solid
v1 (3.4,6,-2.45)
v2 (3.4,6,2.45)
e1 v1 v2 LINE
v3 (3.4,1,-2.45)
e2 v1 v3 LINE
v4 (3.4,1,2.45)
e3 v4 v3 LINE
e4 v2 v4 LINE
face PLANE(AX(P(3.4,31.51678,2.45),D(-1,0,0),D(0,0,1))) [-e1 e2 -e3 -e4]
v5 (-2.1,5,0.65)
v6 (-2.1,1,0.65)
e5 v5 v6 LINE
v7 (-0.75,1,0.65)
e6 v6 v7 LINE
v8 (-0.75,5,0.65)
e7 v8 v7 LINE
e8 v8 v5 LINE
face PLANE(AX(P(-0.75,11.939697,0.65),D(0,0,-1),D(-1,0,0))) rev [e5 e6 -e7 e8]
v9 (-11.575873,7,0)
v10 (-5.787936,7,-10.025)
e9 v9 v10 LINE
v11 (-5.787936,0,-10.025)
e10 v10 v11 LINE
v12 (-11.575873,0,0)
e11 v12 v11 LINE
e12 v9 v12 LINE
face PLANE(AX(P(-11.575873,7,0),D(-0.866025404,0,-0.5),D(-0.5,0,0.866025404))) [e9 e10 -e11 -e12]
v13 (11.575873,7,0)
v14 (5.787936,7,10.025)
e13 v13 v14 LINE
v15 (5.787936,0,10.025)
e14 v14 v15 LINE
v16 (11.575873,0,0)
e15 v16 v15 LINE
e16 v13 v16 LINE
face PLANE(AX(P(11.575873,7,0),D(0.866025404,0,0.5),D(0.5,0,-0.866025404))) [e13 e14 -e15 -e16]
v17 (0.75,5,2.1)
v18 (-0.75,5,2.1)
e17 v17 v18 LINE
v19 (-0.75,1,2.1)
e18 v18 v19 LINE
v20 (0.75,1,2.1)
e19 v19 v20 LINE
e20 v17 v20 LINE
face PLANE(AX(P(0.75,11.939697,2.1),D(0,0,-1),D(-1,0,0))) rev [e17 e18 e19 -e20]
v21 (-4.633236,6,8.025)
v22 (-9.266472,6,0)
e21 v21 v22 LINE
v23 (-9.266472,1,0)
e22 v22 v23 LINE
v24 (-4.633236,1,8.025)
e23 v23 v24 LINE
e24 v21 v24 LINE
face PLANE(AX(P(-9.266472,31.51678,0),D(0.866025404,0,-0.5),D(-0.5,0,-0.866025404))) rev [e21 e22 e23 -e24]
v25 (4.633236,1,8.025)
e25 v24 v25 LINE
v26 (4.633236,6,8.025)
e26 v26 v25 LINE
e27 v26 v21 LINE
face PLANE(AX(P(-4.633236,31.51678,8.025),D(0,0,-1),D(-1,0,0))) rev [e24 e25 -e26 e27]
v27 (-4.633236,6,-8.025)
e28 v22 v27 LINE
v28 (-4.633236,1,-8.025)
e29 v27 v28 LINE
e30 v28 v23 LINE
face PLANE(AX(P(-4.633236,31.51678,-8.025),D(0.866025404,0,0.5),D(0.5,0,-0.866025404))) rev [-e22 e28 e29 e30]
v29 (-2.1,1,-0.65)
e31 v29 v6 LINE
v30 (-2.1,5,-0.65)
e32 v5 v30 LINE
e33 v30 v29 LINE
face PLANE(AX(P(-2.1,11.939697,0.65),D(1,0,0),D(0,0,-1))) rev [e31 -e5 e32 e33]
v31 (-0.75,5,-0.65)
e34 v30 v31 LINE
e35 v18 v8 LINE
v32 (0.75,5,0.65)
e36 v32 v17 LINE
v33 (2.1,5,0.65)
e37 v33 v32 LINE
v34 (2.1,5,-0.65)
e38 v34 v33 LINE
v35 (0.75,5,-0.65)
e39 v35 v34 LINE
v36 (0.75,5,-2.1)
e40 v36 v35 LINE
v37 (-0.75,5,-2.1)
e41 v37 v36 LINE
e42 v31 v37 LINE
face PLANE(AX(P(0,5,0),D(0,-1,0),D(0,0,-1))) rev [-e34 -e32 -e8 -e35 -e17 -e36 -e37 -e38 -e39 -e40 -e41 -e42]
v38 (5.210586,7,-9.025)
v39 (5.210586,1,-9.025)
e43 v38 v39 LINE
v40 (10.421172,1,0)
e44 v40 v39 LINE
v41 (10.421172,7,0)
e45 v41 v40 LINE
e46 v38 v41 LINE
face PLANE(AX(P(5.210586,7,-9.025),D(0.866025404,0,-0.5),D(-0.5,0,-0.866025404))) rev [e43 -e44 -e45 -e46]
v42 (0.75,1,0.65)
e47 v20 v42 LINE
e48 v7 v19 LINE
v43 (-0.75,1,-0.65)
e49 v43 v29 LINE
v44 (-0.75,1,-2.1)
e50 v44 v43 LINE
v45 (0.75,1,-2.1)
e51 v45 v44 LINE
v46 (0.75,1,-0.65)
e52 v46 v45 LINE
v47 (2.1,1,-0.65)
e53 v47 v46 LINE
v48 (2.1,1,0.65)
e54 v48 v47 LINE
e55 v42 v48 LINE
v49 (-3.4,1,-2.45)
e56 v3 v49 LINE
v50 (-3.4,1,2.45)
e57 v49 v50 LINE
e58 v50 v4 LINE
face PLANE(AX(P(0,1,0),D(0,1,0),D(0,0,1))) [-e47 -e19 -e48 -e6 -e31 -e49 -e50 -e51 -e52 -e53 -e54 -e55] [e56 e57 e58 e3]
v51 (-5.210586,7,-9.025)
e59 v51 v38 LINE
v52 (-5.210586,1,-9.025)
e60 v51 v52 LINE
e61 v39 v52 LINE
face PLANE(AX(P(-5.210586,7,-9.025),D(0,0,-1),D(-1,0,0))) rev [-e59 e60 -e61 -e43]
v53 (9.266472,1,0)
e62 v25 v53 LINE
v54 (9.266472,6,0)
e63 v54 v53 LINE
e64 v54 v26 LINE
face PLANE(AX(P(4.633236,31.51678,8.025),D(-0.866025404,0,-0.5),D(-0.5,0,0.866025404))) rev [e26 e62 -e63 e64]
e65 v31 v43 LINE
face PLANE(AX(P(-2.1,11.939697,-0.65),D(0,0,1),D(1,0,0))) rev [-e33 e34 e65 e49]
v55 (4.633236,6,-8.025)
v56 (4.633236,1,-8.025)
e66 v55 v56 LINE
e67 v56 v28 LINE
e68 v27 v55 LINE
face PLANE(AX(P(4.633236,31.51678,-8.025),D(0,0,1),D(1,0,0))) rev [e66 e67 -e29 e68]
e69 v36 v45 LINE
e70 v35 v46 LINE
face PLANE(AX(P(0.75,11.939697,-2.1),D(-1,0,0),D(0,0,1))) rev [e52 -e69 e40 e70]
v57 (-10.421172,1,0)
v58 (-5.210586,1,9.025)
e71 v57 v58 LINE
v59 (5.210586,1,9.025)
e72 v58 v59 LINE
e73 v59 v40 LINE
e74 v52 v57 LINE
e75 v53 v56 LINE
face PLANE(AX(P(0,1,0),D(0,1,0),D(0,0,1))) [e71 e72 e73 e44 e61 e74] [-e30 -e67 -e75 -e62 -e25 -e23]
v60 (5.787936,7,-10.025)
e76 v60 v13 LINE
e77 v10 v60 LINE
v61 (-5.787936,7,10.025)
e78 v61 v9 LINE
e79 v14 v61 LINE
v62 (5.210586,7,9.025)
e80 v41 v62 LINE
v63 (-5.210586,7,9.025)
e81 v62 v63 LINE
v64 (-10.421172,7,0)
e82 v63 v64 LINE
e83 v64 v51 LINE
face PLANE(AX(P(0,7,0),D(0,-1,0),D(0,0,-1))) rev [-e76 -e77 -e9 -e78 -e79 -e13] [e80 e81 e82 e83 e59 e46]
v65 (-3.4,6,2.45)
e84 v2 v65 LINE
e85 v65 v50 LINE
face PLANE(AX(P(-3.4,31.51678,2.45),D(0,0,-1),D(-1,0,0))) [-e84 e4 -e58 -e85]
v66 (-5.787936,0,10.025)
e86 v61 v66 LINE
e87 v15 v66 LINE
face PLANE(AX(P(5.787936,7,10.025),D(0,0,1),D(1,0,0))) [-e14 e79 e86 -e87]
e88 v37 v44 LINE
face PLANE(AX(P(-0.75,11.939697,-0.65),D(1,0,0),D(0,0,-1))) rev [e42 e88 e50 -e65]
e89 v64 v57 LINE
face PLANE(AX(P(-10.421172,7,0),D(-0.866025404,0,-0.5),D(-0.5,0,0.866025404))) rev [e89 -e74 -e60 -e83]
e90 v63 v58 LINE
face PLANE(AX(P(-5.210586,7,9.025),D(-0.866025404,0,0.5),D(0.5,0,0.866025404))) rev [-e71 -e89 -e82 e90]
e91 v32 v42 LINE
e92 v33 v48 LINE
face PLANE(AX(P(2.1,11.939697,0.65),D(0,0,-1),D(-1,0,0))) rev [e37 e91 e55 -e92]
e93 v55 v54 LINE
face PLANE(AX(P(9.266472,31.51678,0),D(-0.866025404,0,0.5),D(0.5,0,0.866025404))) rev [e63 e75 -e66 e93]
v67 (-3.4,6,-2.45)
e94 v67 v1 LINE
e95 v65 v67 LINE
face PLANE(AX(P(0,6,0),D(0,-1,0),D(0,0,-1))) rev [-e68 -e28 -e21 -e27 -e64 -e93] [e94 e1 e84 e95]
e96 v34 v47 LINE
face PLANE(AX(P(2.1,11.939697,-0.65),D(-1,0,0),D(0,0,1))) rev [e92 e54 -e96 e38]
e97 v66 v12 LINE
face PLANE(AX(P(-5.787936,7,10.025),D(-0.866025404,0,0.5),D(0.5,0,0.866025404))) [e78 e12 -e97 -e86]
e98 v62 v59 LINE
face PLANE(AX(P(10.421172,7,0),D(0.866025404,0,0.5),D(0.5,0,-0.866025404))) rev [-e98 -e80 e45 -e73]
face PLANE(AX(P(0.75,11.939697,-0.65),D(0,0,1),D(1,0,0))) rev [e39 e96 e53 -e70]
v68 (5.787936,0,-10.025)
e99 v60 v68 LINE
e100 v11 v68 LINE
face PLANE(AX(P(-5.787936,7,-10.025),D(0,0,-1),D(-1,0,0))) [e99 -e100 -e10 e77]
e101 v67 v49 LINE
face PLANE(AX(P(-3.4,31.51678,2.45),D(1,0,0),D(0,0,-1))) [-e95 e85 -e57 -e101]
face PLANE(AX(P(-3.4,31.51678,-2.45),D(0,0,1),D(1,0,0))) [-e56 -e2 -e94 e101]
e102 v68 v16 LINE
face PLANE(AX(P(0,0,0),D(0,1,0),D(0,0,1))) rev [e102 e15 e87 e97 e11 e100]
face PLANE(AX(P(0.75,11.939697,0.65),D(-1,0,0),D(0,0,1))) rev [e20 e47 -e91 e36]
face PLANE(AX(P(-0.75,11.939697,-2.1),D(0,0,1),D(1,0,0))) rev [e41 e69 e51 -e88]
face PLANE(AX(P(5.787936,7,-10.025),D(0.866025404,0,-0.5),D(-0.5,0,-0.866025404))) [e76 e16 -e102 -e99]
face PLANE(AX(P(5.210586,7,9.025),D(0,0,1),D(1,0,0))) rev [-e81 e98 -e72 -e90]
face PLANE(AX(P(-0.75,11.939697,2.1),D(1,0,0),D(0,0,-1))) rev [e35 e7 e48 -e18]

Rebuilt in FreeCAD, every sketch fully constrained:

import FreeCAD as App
import Part
import Sketcher
from FreeCAD import Vector
Q = App.Units.Quantity


def add_polygon(sketch, points):
    """Adds a closed chain of lines whose ends are joined by coincident constraints."""
    first, n = sketch.GeometryCount, len(points)
    for a, b in zip(points, points[1:] + points[:1]):
        sketch.addGeometry(Part.LineSegment(App.Vector(*a, 0), App.Vector(*b, 0)), False)
    for i in range(n):
        sketch.addConstraint(Sketcher.Constraint("Coincident", first + i, 2, first + (i + 1) % n, 1))

doc = App.newDocument("Part")
body = doc.addObject("PartDesign::Body", "Body")

sketch1 = body.newObject("Sketcher::SketchObject", "Sketch")
sketch1.AttachmentSupport = (doc.getObject("XZ_Plane"), [""])
sketch1.MapMode = "FlatFace"
add_polygon(sketch1, [(10.421172, 0), (5.210586, -9.025), (-5.210586, -9.025), (-10.421172, 0), (-5.210586, 9.025), (5.210586, 9.025)])
sketch1.addConstraint([
    Sketcher.Constraint("Horizontal", 1),
    Sketcher.Constraint("Horizontal", 4),
    Sketcher.Constraint("Symmetric", 0, 2, 3, 2, -1, 1),
    Sketcher.Constraint("Symmetric", 2, 2, 5, 2, -1, 1),
    Sketcher.Constraint("PointOnObject", 2, 2, -1),
    Sketcher.Constraint("Parallel", 2, 5),
    Sketcher.Constraint("Vertical", 1, 2, 3, 2),
    Sketcher.Constraint("Angle", 0, Q("-120 deg")),
    Sketcher.Constraint("DistanceY", 1, 2, 3, 2, 18.05),
    Sketcher.Constraint("DistanceX", 1, 2, 1, 1, 10.421172),
])
pad1 = body.newObject("PartDesign::Pad", "Pad")
pad1.Profile = sketch1
pad1.Length = 1
pad1.Reversed = True
body2 = doc.addObject("PartDesign::Body", "Body001")

sketch2 = body2.newObject("Sketcher::SketchObject", "Sketch001")
sketch2.AttachmentSupport = (doc.getObject("XZ_Plane001"), [""])
sketch2.MapMode = "FlatFace"
add_polygon(sketch2, [(11.575873, 0), (5.787936, 10.025), (-5.787936, 10.025), (-11.575873, 0), (-5.787936, -10.025), (5.787936, -10.025)])
add_polygon(sketch2, [(5.210586, 9.025), (10.421172, 0), (5.210586, -9.025), (-5.210586, -9.025), (-10.421172, 0), (-5.210586, 9.025)])
sketch2.addConstraint([
    Sketcher.Constraint("Horizontal", 1),
    Sketcher.Constraint("Horizontal", 4),
    Sketcher.Constraint("Horizontal", 8),
    Sketcher.Constraint("Horizontal", 11),
    Sketcher.Constraint("Symmetric", 0, 2, 3, 2, -1, 1),
    Sketcher.Constraint("Symmetric", 2, 2, 5, 2, -1, 1),
    Sketcher.Constraint("Symmetric", 6, 2, 9, 2, -1, 1),
    Sketcher.Constraint("Symmetric", 7, 2, 10, 2, -1, 1),
    Sketcher.Constraint("PointOnObject", 2, 2, -1),
    Sketcher.Constraint("PointOnObject", 6, 2, -1),
    Sketcher.Constraint("Parallel", 2, 5),
    Sketcher.Constraint("Parallel", 3, 6),
    Sketcher.Constraint("Parallel", 5, 7),
    Sketcher.Constraint("Parallel", 6, 9),
    Sketcher.Constraint("Vertical", 1, 2, 3, 2),
    Sketcher.Constraint("Angle", 0, Q("120 deg")),
    Sketcher.Constraint("DistanceY", 4, 2, 7, 2, 1.0),
    Sketcher.Constraint("DistanceY", 3, 2, 1, 2, 20.05),
    Sketcher.Constraint("DistanceX", 6, 2, 5, 2, 1.154701),
    Sketcher.Constraint("DistanceX", 1, 2, 1, 1, 11.575873),
])
pad2 = body2.newObject("PartDesign::Pad", "Pad001")
pad2.Profile = sketch2
pad2.Length = 7
pad2.Reversed = True
doc.recompute()

boolean = body.newObject("PartDesign::Boolean", "Boolean")
boolean.Type = "Fuse"
boolean.addObjects([body2])

sketch3 = body.newObject("Sketcher::SketchObject", "Sketch002")
sketch3.AttachmentSupport = (doc.getObject("XZ_Plane"), [""])
sketch3.MapMode = "FlatFace"
sketch3.AttachmentOffset = App.Placement(Vector(0, 0, -1), App.Rotation())
add_polygon(sketch3, [(4.633236, 8.025), (9.266472, 0), (4.633236, -8.025), (-4.633236, -8.025), (-9.266472, 0), (-4.633236, 8.025)])
add_polygon(sketch3, [(3.4, 2.45), (-3.4, 2.45), (-3.4, -2.45), (3.4, -2.45)])
sketch3.addConstraint([
    Sketcher.Constraint("Horizontal", 2),
    Sketcher.Constraint("Horizontal", 5),
    Sketcher.Constraint("Horizontal", 6),
    Sketcher.Constraint("Vertical", 7),
    Sketcher.Constraint("Horizontal", 8),
    Sketcher.Constraint("Vertical", 9),
    Sketcher.Constraint("Symmetric", 0, 2, 3, 2, -1, 1),
    Sketcher.Constraint("Symmetric", 1, 2, 4, 2, -1, 1),
    Sketcher.Constraint("Symmetric", 6, 2, 8, 2, -1, 1),
    Sketcher.Constraint("PointOnObject", 0, 2, -1),
    Sketcher.Constraint("Parallel", 0, 3),
    Sketcher.Constraint("Vertical", 2, 2, 4, 2),
    Sketcher.Constraint("Angle", 0, Q("-60 deg")),
    Sketcher.Constraint("DistanceX", 6, 2, 6, 1, 6.8),
    Sketcher.Constraint("DistanceY", 7, 2, 7, 1, 4.9),
    Sketcher.Constraint("DistanceY", 2, 2, 4, 2, 16.05),
    Sketcher.Constraint("DistanceX", 2, 2, 2, 1, 9.266472),
])
pad3 = body.newObject("PartDesign::Pad", "Pad002")
pad3.Profile = sketch3
pad3.Length = 5
pad3.Reversed = True

sketch4 = body.newObject("Sketcher::SketchObject", "Sketch003")
sketch4.AttachmentSupport = (doc.getObject("XZ_Plane"), [""])
sketch4.MapMode = "FlatFace"
sketch4.AttachmentOffset = App.Placement(Vector(0, 0, -1), App.Rotation())
add_polygon(sketch4, [(0.75, -2.1), (-0.75, -2.1), (-0.75, -0.65), (-2.1, -0.65), (-2.1, 0.65), (-0.75, 0.65), (-0.75, 2.1), (0.75, 2.1), (0.75, 0.65), (2.1, 0.65), (2.1, -0.65), (0.75, -0.65)])
sketch4.addConstraint([
    Sketcher.Constraint("Horizontal", 0),
    Sketcher.Constraint("Vertical", 1),
    Sketcher.Constraint("Horizontal", 2),
    Sketcher.Constraint("Vertical", 3),
    Sketcher.Constraint("Horizontal", 4),
    Sketcher.Constraint("Vertical", 5),
    Sketcher.Constraint("Horizontal", 6),
    Sketcher.Constraint("Vertical", 7),
    Sketcher.Constraint("Horizontal", 8),
    Sketcher.Constraint("Vertical", 9),
    Sketcher.Constraint("Horizontal", 10),
    Sketcher.Constraint("Vertical", 11),
    Sketcher.Constraint("Symmetric", 0, 2, 6, 2, -1, 1),
    Sketcher.Constraint("Symmetric", 2, 2, 8, 2, -1, 1),
    Sketcher.Constraint("Symmetric", 4, 2, 10, 2, -1, 1),
    Sketcher.Constraint("Symmetric", 4, 2, 7, 2, -2),
    Sketcher.Constraint("DistanceX", 0, 2, 0, 1, 1.5),
    Sketcher.Constraint("DistanceY", 3, 1, 3, 2, 1.3),
    Sketcher.Constraint("DistanceX", 2, 2, 2, 1, 1.35),
    Sketcher.Constraint("DistanceY", 1, 1, 1, 2, 1.45),
])
pad4 = body.newObject("PartDesign::Pad", "Pad003")
pad4.Profile = sketch4
pad4.Length = 4
pad4.Reversed = True

doc.recompute()
